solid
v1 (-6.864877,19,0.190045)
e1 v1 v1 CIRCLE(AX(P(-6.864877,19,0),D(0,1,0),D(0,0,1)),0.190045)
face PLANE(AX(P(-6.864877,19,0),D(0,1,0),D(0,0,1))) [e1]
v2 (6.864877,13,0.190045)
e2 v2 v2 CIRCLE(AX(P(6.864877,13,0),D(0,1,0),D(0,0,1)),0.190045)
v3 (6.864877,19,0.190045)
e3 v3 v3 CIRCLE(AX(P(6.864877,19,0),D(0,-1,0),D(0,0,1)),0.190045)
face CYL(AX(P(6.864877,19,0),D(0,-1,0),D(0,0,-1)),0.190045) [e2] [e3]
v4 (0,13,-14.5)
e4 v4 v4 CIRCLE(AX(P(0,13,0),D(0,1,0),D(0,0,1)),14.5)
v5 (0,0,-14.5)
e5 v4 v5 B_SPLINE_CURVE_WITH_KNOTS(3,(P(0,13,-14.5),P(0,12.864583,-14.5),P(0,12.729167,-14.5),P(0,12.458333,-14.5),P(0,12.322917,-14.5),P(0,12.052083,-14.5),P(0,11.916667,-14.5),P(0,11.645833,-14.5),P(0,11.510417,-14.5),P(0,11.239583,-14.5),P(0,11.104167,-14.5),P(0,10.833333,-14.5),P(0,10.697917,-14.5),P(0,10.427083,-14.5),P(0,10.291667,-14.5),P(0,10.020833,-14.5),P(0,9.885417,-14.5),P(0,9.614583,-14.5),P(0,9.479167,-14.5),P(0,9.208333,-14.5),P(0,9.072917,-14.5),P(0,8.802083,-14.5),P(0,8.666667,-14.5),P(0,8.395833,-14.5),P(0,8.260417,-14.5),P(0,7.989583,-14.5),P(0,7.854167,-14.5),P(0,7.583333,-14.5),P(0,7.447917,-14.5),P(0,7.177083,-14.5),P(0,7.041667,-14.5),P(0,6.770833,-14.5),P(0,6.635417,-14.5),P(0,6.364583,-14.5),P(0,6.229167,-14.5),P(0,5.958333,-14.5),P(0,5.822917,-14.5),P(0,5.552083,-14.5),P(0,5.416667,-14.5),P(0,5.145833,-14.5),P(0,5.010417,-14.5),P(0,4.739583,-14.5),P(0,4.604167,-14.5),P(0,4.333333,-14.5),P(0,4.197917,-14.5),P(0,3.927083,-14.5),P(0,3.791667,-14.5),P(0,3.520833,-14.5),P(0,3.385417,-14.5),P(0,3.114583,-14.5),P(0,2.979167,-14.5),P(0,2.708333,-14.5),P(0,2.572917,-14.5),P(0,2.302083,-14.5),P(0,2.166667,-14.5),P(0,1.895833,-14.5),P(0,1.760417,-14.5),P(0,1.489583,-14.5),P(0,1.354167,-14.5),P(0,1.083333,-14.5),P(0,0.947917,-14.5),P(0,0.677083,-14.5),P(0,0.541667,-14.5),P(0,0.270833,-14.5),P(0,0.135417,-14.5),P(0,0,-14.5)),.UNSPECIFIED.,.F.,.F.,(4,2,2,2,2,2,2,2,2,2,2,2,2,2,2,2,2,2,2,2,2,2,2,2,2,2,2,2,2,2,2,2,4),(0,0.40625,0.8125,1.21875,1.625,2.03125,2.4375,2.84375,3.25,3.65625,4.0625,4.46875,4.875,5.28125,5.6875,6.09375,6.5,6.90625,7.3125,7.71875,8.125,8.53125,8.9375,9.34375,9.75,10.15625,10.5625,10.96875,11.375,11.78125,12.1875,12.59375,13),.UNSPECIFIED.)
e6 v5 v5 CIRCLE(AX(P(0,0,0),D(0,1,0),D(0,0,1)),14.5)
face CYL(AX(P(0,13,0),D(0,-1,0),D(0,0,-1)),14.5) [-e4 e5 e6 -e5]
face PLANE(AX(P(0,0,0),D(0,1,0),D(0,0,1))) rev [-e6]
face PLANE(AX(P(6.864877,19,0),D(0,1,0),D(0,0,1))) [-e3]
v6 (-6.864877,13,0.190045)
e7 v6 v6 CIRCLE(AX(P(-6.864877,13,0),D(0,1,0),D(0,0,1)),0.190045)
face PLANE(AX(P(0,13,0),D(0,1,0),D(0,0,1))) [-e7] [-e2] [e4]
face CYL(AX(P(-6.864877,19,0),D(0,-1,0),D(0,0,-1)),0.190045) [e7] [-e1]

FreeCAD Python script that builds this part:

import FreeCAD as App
import Part
import Sketcher

V = App.Vector

doc = App.newDocument("Part")
body = doc.addObject("PartDesign::Body", "Body")

# Sketch on XZ plane
sketch1 = doc.addObject("Sketcher::SketchObject", "Sketch")
body.addObject(sketch1)
sketch1.AttachmentSupport = (doc.XZ_Plane, [""])
sketch1.MapMode = "FlatFace"
sketch1.addGeometry(Part.Circle(V(0, 0, 0), V(0, 0, 1), 14), False)
sketch1.addConstraint([
    Sketcher.Constraint("Coincident", 0, 3, -1, 1),
    Sketcher.Constraint("Diameter", 0, 29.0),
])
pad1 = doc.addObject("PartDesign::Pad", "Pad")
body.addObject(pad1)
pad1.Profile = sketch1
pad1.Length = 13
pad1.Reversed = True

# Sketch on XZ plane
sketch2 = doc.addObject("Sketcher::SketchObject", "Sketch001")
body.addObject(sketch2)
sketch2.AttachmentSupport = (doc.XZ_Plane, [""])
sketch2.MapMode = "FlatFace"
sketch2.AttachmentOffset = App.Placement(V(0, 0, -13), App.Rotation())
sketch2.addGeometry(Part.Circle(V(-6.86, 0, 0), V(0, 0, 1), 0.19), False)
sketch2.addConstraint([
    Sketcher.Constraint("PointOnObject", 0, 3, -1),
    Sketcher.Constraint("Diameter", 0, 0.38009),
    Sketcher.Constraint("DistanceX", 0, 3, -1, 1, 6.864877),
])
pad2 = doc.addObject("PartDesign::Pad", "Pad001")
body.addObject(pad2)
pad2.Profile = sketch2
pad2.Length = 6
pad2.Reversed = True
doc.recompute()

mirrored = doc.addObject("PartDesign::Mirrored", "Mirrored")
body.addObject(mirrored)
mirrored.Originals = [pad2]
mirrored.MirrorPlane = (doc.YZ_Plane, [""])
body.Tip = mirrored

doc.recompute()
